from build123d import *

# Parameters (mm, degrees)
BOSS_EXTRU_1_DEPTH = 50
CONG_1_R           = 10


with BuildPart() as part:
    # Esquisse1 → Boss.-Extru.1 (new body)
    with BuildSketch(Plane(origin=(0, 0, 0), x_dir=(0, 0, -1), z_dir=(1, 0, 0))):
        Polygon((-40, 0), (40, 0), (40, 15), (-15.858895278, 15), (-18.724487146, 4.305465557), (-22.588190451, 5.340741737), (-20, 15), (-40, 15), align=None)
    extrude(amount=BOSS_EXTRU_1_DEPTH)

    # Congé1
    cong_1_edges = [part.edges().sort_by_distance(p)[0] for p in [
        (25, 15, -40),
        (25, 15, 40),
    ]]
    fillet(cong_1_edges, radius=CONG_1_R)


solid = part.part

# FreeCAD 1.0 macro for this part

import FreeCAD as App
import Part
import Sketcher

V = App.Vector
Q = App.Units.Quantity


def edges_at(feature, points):
    """Names of the edges that pass closest to the given points."""
    edges = feature.Shape.Edges
    near = lambda p: min(range(len(edges)), key=lambda i: edges[i].distToShape(Part.Vertex(*p))[0])
    return sorted({f"Edge{near(p) + 1}" for p in points})

doc = App.newDocument("Part")
params = doc.addObject("Spreadsheet::Sheet", "Params")
for row, (alias, value) in enumerate([
    ("sketch1_width", "15 mm"),
    ("sketch1_height", "80 mm"),
    ("sketch1_height2", "20 mm"),
    ("sketch1_length", "4 mm"),
    ("sketch1_length2", "10 mm"),
    ("pad1_length", "50 mm"),
    ("fillet_radius", "10 mm"),
], start=1):
    params.set(f"A{row}", alias)
    params.set(f"B{row}", "=" + value)
    params.setAlias(f"B{row}", alias)

body = doc.addObject("PartDesign::Body", "Body")

sketch1 = body.newObject("Sketcher::SketchObject", "Sketch")
sketch1.AttachmentSupport = (doc.getObject("YZ_Plane"), [""])
sketch1.MapMode = "FlatFace"
sketch1.addGeometry([
    Part.LineSegment(V(0, 40, 0), V(0, -40, 0)),
    Part.LineSegment(V(0, -40, 0), V(15, -40, 0)),
    Part.LineSegment(V(15, -40, 0), V(15, 15.858895, 0)),
    Part.LineSegment(V(15, 15.858895, 0), V(4.305466, 18.724487, 0)),
    Part.LineSegment(V(4.305466, 18.724487, 0), V(5.340742, 22.58819, 0)),
    Part.LineSegment(V(5.340742, 22.58819, 0), V(15, 20, 0)),
    Part.LineSegment(V(15, 20, 0), V(15, 40, 0)),
    Part.LineSegment(V(15, 40, 0), V(0, 40, 0)),
], False)
sketch1.addConstraint([
    Sketcher.Constraint("Coincident", 0, 2, 1, 1),
    Sketcher.Constraint("Coincident", 1, 2, 2, 1),
    Sketcher.Constraint("Coincident", 2, 2, 3, 1),
    Sketcher.Constraint("Coincident", 3, 2, 4, 1),
    Sketcher.Constraint("Coincident", 4, 2, 5, 1),
    Sketcher.Constraint("Coincident", 5, 2, 6, 1),
    Sketcher.Constraint("Coincident", 6, 2, 7, 1),
    Sketcher.Constraint("Coincident", 7, 2, 0, 1),
    Sketcher.Constraint("Vertical", 0),
    Sketcher.Constraint("Horizontal", 1),
    Sketcher.Constraint("Vertical", 2),
    Sketcher.Constraint("Vertical", 6),
    Sketcher.Constraint("Horizontal", 7),
    Sketcher.Constraint("Symmetric", 0, 2, 7, 2, -1, 1),
    Sketcher.Constraint("Perpendicular", 3, 4),
    Sketcher.Constraint("Perpendicular", 4, 5),
    Sketcher.Constraint("Vertical", 2, 2, 5, 2),
    Sketcher.Constraint("DistanceX", 1, 1, 1, 2, 15.0),
    Sketcher.Constraint("DistanceY", 0, 2, 0, 1, 80.0),
    Sketcher.Constraint("DistanceY", 6, 1, 6, 2, 20.0),
    Sketcher.Constraint("Angle", 3, Q("165 deg")),
    Sketcher.Constraint("Distance", 4, 4.0),
    Sketcher.Constraint("Distance", 5, 10.0),
])
sketch1.setExpression("Constraints[17]", "Params.sketch1_width")
sketch1.setExpression("Constraints[18]", "Params.sketch1_height")
sketch1.setExpression("Constraints[19]", "Params.sketch1_height2")
sketch1.setExpression("Constraints[21]", "Params.sketch1_length")
sketch1.setExpression("Constraints[22]", "Params.sketch1_length2")
pad1 = body.newObject("PartDesign::Pad", "Pad")
pad1.Profile = sketch1
pad1.setExpression("Length", "Params.pad1_length")
doc.recompute()

fillet = body.newObject("PartDesign::Fillet", "Fillet")
fillet.Base = (pad1, edges_at(pad1, [(25, 15, -40), (25, 15, 40)]))
fillet.setExpression("Radius", "Params.fillet_radius")

doc.recompute()
